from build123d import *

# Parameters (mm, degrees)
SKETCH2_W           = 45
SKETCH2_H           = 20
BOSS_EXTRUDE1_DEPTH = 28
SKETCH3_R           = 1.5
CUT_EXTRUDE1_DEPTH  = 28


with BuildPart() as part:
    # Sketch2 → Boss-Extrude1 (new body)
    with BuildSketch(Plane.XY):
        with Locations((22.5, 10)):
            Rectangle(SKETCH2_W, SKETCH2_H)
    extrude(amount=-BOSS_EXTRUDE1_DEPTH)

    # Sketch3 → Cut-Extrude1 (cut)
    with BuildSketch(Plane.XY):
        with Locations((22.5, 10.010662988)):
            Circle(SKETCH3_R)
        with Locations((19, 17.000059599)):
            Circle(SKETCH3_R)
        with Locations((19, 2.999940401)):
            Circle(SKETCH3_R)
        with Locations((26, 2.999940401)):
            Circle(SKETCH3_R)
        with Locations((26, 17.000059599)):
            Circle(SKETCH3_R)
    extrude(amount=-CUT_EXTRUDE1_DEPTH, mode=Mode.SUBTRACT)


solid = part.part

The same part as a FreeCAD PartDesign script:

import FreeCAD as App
import Part
import Sketcher

V = App.Vector
Q = App.Units.Quantity

doc = App.newDocument("Part")
body = doc.addObject("PartDesign::Body", "Body")

# Sketch on XY plane
sketch1 = doc.addObject("Sketcher::SketchObject", "Sketch")
body.addObject(sketch1)
sketch1.AttachmentSupport = (doc.XY_Plane, [""])
sketch1.MapMode = "FlatFace"
sketch1.addGeometry([
    Part.LineSegment(V(0, 20, 0), V(0, 0, 0)),
    Part.LineSegment(V(0, 0, 0), V(45, 0, 0)),
    Part.LineSegment(V(45, 0, 0), V(45, 20, 0)),
    Part.LineSegment(V(45, 20, 0), V(0, 20, 0)),
], False)
sketch1.addConstraint([
    Sketcher.Constraint("Coincident", 0, 2, 1, 1),
    Sketcher.Constraint("Coincident", 1, 2, 2, 1),
    Sketcher.Constraint("Coincident", 2, 2, 3, 1),
    Sketcher.Constraint("Coincident", 3, 2, 0, 1),
    Sketcher.Constraint("Vertical", 0),
    Sketcher.Constraint("Horizontal", 1),
    Sketcher.Constraint("Vertical", 2),
    Sketcher.Constraint("Horizontal", 3),
    Sketcher.Constraint("Coincident", 0, 2, -1, 1),
    Sketcher.Constraint("DistanceX", 1, 1, 1, 2, Q("45 mm")),
    Sketcher.Constraint("DistanceY", 0, 2, 0, 1, Q("20 mm")),
])
pad1 = doc.addObject("PartDesign::Pad", "Pad")
body.addObject(pad1)
pad1.Profile = sketch1
pad1.Length = 28
pad1.Reversed = True

# Sketch on XY plane
sketch2 = doc.addObject("Sketcher::SketchObject", "Sketch001")
body.addObject(sketch2)
sketch2.AttachmentSupport = (doc.XY_Plane, [""])
sketch2.MapMode = "FlatFace"
sketch2.addGeometry([
    Part.Circle(V(22.5, 10.010663, 0), V(0, 0, 1), 1.5),  # 0
    Part.Circle(V(19, 17.00006, 0), V(0, 0, 1), 1.5),  # 1
    Part.Circle(V(19, 2.99994, 0), V(0, 0, 1), 1.5),  # 2
    Part.Circle(V(26, 2.99994, 0), V(0, 0, 1), 1.5),  # 3
    Part.Circle(V(26, 17.00006, 0), V(0, 0, 1), 1.5),  # 4
], False)
sketch2.addConstraint([
    Sketcher.Constraint("Equal", 0, 1),
    Sketcher.Constraint("Equal", 1, 2),
    Sketcher.Constraint("Equal", 2, 3),
    Sketcher.Constraint("Equal", 3, 4),
    Sketcher.Constraint("Horizontal", 2, 3, 3, 3),
    Sketcher.Constraint("Horizontal", 1, 3, 4, 3),
    Sketcher.Constraint("Vertical", 1, 3, 2, 3),
    Sketcher.Constraint("Vertical", 3, 3, 4, 3),
    Sketcher.Constraint("Diameter", 0, Q("3 mm")),
    Sketcher.Constraint("DistanceX", -1, 1, 1, 3, Q("19 mm")),
    Sketcher.Constraint("DistanceX", -1, 1, 3, 3, Q("26 mm")),
    Sketcher.Constraint("DistanceX", -1, 1, 0, 3, Q("22.5 mm")),
    Sketcher.Constraint("DistanceY", -1, 1, 1, 3, Q("17.00006 mm")),
    Sketcher.Constraint("DistanceY", -1, 1, 2, 3, Q("2.99994 mm")),
    Sketcher.Constraint("DistanceY", -1, 1, 0, 3, Q("10.010663 mm")),
])
pocket1 = doc.addObject("PartDesign::Pocket", "Pocket")
body.addObject(pocket1)
pocket1.Profile = sketch2
pocket1.Length = 28

doc.recompute()
